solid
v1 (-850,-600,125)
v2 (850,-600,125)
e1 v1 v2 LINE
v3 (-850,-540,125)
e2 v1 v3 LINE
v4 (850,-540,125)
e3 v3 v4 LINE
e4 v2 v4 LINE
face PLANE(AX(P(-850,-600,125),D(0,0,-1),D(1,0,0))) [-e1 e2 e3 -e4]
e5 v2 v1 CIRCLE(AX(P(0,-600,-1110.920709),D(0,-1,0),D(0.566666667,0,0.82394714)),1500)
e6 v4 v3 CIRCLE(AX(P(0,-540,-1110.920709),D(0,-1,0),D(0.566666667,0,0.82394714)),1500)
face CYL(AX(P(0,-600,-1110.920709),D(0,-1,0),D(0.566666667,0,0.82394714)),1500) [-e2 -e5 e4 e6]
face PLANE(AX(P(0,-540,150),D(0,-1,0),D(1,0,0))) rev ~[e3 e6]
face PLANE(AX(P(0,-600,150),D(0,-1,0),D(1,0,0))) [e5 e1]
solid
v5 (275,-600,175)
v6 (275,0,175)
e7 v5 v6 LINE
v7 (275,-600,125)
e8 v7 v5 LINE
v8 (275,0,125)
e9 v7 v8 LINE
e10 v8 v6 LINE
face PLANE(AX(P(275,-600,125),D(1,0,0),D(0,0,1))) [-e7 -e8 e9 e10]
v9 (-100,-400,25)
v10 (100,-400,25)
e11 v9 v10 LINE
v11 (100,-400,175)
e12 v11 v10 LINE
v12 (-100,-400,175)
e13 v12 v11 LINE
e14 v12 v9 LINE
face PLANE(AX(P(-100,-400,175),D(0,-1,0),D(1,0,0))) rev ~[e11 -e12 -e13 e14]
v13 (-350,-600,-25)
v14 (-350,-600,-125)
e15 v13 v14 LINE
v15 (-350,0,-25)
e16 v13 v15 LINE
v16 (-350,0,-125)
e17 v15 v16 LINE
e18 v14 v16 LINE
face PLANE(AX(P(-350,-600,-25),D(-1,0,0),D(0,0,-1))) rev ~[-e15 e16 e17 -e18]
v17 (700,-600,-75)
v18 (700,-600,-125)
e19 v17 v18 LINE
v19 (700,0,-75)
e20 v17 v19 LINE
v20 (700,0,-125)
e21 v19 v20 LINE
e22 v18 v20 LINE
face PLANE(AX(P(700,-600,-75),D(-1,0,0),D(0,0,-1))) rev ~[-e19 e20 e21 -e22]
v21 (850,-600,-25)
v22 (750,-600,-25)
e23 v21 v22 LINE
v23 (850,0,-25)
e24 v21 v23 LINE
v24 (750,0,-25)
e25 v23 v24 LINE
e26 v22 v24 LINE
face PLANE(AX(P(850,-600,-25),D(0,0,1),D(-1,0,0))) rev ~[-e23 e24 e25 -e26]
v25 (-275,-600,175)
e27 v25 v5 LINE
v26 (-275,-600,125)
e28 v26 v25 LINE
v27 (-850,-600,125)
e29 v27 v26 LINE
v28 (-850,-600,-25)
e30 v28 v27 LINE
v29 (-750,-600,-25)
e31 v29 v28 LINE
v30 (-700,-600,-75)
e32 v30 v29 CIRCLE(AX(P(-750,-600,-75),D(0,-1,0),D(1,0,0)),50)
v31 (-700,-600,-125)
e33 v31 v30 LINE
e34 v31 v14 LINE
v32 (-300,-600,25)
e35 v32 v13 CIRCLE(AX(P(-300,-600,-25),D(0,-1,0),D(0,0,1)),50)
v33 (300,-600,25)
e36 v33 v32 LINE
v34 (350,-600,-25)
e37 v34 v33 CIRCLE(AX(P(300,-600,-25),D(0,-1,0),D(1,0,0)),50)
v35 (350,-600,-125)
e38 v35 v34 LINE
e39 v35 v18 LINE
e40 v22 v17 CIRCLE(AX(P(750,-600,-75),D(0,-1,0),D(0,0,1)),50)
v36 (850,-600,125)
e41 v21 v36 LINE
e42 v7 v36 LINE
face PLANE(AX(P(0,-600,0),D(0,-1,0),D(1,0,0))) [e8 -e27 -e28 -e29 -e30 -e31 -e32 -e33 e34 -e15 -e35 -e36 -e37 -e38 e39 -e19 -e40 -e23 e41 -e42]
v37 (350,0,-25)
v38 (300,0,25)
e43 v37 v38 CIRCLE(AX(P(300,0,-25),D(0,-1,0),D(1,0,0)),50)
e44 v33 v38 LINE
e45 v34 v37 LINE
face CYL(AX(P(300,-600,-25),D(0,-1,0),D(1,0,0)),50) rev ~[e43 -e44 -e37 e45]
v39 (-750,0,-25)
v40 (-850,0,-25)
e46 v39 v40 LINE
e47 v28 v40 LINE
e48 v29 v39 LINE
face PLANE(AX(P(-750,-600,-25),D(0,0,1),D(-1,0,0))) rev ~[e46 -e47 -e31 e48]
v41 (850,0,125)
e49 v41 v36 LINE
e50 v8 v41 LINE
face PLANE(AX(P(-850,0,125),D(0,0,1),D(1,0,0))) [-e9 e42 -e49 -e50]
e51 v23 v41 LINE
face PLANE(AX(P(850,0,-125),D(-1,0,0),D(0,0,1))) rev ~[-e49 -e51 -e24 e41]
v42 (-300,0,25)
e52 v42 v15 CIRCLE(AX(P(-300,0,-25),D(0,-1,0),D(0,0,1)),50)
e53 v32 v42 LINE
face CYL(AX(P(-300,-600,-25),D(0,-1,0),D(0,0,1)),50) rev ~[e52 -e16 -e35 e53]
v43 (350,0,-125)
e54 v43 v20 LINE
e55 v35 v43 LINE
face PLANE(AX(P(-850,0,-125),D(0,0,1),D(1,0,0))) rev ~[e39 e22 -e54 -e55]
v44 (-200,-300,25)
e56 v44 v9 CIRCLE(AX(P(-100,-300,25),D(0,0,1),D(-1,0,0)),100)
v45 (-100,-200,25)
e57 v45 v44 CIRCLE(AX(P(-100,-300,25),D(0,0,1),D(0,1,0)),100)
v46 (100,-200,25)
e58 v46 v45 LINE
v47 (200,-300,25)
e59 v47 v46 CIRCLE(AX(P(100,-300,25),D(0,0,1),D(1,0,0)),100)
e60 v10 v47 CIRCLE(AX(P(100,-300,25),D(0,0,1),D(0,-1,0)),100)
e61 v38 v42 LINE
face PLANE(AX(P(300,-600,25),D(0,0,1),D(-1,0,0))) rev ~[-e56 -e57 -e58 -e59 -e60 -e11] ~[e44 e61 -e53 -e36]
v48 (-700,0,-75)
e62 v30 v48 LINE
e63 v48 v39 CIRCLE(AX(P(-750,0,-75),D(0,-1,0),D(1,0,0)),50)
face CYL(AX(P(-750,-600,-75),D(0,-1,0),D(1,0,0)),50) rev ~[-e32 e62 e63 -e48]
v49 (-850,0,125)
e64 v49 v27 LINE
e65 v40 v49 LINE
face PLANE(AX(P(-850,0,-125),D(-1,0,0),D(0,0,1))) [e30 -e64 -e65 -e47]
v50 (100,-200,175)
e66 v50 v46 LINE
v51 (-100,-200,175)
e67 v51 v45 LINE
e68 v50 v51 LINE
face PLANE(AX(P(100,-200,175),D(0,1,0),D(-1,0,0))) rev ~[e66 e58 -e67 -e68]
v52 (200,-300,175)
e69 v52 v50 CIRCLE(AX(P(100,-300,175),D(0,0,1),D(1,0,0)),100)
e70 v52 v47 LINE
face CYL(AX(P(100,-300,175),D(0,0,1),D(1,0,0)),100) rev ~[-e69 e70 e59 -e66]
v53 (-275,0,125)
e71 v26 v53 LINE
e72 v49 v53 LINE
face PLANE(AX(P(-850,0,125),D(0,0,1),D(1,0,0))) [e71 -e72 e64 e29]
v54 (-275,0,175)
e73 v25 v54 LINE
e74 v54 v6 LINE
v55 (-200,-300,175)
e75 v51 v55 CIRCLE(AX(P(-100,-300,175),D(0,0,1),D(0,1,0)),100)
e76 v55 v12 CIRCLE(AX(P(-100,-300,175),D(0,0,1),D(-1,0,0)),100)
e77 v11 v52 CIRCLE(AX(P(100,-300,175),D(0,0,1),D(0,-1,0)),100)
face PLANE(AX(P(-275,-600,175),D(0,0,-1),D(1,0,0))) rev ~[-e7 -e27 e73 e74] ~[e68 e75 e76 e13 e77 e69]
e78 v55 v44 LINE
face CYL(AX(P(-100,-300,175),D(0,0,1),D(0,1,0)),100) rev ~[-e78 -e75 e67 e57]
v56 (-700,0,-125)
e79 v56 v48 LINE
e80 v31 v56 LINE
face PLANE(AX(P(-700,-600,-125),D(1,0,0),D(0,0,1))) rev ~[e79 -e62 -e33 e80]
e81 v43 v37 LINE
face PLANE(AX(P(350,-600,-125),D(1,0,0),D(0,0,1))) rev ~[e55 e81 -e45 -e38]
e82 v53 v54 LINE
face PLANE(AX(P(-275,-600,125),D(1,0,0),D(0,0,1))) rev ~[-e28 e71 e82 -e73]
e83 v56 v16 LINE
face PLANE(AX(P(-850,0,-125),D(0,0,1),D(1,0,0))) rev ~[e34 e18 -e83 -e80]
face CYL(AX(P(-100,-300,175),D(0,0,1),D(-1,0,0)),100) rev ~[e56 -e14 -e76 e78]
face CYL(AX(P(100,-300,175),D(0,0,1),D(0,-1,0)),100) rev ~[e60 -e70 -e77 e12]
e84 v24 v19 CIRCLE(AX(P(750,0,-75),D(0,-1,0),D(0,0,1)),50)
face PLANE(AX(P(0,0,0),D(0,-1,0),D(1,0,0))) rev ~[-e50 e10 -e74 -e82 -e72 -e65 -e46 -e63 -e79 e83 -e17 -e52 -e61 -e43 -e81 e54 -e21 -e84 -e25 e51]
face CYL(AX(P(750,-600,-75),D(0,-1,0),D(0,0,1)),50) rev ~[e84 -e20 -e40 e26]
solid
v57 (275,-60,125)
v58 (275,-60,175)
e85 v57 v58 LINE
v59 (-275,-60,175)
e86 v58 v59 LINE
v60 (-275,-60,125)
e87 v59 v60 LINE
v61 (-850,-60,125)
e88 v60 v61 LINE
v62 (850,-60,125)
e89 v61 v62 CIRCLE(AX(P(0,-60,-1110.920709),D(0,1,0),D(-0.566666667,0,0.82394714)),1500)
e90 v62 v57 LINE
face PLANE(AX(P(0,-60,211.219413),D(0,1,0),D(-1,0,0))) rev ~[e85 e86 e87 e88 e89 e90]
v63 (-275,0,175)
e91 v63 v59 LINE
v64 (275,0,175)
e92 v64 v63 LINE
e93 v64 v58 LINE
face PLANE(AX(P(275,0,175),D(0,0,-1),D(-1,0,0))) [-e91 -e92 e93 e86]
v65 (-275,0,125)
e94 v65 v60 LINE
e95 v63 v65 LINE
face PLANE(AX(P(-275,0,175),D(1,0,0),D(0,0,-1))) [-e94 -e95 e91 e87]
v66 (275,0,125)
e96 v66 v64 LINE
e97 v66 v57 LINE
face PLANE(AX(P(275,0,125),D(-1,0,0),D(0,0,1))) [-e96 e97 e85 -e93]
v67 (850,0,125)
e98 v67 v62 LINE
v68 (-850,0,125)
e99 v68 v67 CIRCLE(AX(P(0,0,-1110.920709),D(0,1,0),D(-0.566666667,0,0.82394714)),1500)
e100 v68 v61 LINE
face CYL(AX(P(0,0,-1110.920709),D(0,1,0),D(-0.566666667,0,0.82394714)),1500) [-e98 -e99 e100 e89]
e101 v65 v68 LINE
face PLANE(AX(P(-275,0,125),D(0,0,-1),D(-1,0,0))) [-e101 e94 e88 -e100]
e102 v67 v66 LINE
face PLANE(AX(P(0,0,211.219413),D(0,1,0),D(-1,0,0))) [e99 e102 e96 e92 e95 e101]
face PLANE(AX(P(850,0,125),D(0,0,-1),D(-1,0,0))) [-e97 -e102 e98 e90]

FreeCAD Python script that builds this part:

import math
import FreeCAD as App
import Part
import Sketcher


def add_polygon(sketch, points):
    """Adds a closed chain of lines whose ends are joined by coincident constraints."""
    first, n = sketch.GeometryCount, len(points)
    for a, b in zip(points, points[1:] + points[:1]):
        sketch.addGeometry(Part.LineSegment(App.Vector(*a, 0), App.Vector(*b, 0)), False)
    for i in range(n):
        sketch.addConstraint(Sketcher.Constraint("Coincident", first + i, 2, first + (i + 1) % n, 1))

doc = App.newDocument("Part")
body = doc.addObject("PartDesign::Body", "Body")

sketch1 = body.newObject("Sketcher::SketchObject", "Sketch")
sketch1.AttachmentSupport = (doc.getObject("XZ_Plane"), [""])
sketch1.MapMode = "FlatFace"
add_polygon(sketch1, [(-850, 125), (-850, -125), (850, -125), (850, 125)])
sketch1.addConstraint([
    Sketcher.Constraint("Vertical", 0),
    Sketcher.Constraint("Horizontal", 1),
    Sketcher.Constraint("Vertical", 2),
    Sketcher.Constraint("Horizontal", 3),
    Sketcher.Constraint("Symmetric", 0, 2, 2, 2, -1, 1),
    Sketcher.Constraint("DistanceX", 1, 1, 1, 2, 1700.0),
    Sketcher.Constraint("DistanceY", 0, 2, 0, 1, 250.0),
])
pad1 = body.newObject("PartDesign::Pad", "Pad")
pad1.Profile = sketch1
pad1.Length = 600

sketch2 = body.newObject("Sketcher::SketchObject", "Sketch001")
sketch2.AttachmentSupport = (doc.getObject("XZ_Plane"), [""])
sketch2.MapMode = "FlatFace"
sketch2.AttachmentOffset = App.Placement(App.Vector(0, 0, 600), App.Rotation())
sketch2.addGeometry([
    Part.ArcOfCircle(Part.Circle(App.Vector(300, -25, 0), App.Vector(0, 0, 1), 50), math.radians(0), math.radians(90)),
    Part.LineSegment(App.Vector(300, 25, 0), App.Vector(-300, 25, 0)),
    Part.ArcOfCircle(Part.Circle(App.Vector(-300, -25, 0), App.Vector(0, 0, 1), 50), math.radians(90), math.radians(180)),
    Part.LineSegment(App.Vector(-350, -25, 0), App.Vector(-350, -125, 0)),
    Part.LineSegment(App.Vector(-350, -125, 0), App.Vector(350, -125, 0)),
    Part.LineSegment(App.Vector(350, -125, 0), App.Vector(350, -25, 0)),
    Part.LineSegment(App.Vector(-700, -125, 0), App.Vector(-700, -75, 0)),
    Part.ArcOfCircle(Part.Circle(App.Vector(-750, -75, 0), App.Vector(0, 0, 1), 50), math.radians(0), math.radians(90)),
    Part.LineSegment(App.Vector(-750, -25, 0), App.Vector(-850, -25, 0)),
    Part.LineSegment(App.Vector(-850, -25, 0), App.Vector(-850, -125, 0)),
    Part.LineSegment(App.Vector(-850, -125, 0), App.Vector(-700, -125, 0)),
    Part.LineSegment(App.Vector(700, -75, 0), App.Vector(700, -125, 0)),
    Part.LineSegment(App.Vector(700, -125, 0), App.Vector(850, -125, 0)),
    Part.LineSegment(App.Vector(850, -125, 0), App.Vector(850, -25, 0)),
    Part.LineSegment(App.Vector(850, -25, 0), App.Vector(750, -25, 0)),
    Part.ArcOfCircle(Part.Circle(App.Vector(750, -75, 0), App.Vector(0, 0, 1), 50), math.radians(90), math.radians(180)),
], False)
sketch2.addConstraint([
    Sketcher.Constraint("Tangent", 0, 2, 1, 1),
    Sketcher.Constraint("Tangent", 1, 2, 2, 1),
    Sketcher.Constraint("Tangent", 2, 2, 3, 1),
    Sketcher.Constraint("Coincident", 3, 2, 4, 1),
    Sketcher.Constraint("Coincident", 4, 2, 5, 1),
    Sketcher.Constraint("Tangent", 5, 2, 0, 1),
    Sketcher.Constraint("Tangent", 6, 2, 7, 1),
    Sketcher.Constraint("Tangent", 7, 2, 8, 1),
    Sketcher.Constraint("Coincident", 8, 2, 9, 1),
    Sketcher.Constraint("Coincident", 9, 2, 10, 1),
    Sketcher.Constraint("Coincident", 10, 2, 6, 1),
    Sketcher.Constraint("Coincident", 11, 2, 12, 1),
    Sketcher.Constraint("Coincident", 12, 2, 13, 1),
    Sketcher.Constraint("Coincident", 13, 2, 14, 1),
    Sketcher.Constraint("Tangent", 14, 2, 15, 1),
    Sketcher.Constraint("Tangent", 15, 2, 11, 1),
    Sketcher.Constraint("Horizontal", 1),
    Sketcher.Constraint("Vertical", 3),
    Sketcher.Constraint("Horizontal", 4),
    Sketcher.Constraint("Vertical", 5),
    Sketcher.Constraint("Vertical", 6),
    Sketcher.Constraint("Horizontal", 8),
    Sketcher.Constraint("Vertical", 9),
    Sketcher.Constraint("Horizontal", 10),
    Sketcher.Constraint("Vertical", 11),
    Sketcher.Constraint("Horizontal", 12),
    Sketcher.Constraint("Vertical", 13),
    Sketcher.Constraint("Horizontal", 14),
    Sketcher.Constraint("Equal", 0, 2),
    Sketcher.Constraint("Equal", 2, 7),
    Sketcher.Constraint("Equal", 7, 15),
    Sketcher.Constraint("Symmetric", 7, 3, 15, 3, -2),
    Sketcher.Constraint("Symmetric", 9, 2, 12, 2, -2),
    Sketcher.Constraint("Horizontal", 5, 2, 7, 2),
    Sketcher.Constraint("Horizontal", 4, 2, 9, 2),
    Sketcher.Constraint("Equal", 14, 3),
    Sketcher.Constraint("Radius", 0, 50.0),
    Sketcher.Constraint("DistanceX", 1, 2, 1, 1, 600.0),
    Sketcher.Constraint("DistanceX", 8, 2, 8, 1, 100.0),
    Sketcher.Constraint("DistanceX", -1, 1, 0, 3, 300.0),
    Sketcher.Constraint("DistanceY", 0, 3, -1, 1, 25.0),
    Sketcher.Constraint("DistanceX", 7, 3, -1, 1, 750.0),
])
pocket1 = body.newObject("PartDesign::Pocket", "Pocket")
pocket1.Profile = sketch2
pocket1.Type = "ThroughAll"

sketch3 = body.newObject("Sketcher::SketchObject", "Sketch002")
sketch3.AttachmentSupport = (doc.getObject("XZ_Plane"), [""])
sketch3.MapMode = "FlatFace"
sketch3.AttachmentOffset = App.Placement(App.Vector(0, 0, 600), App.Rotation())
add_polygon(sketch3, [(-275, 175), (-275, 125), (275, 125), (275, 175)])
sketch3.addConstraint([
    Sketcher.Constraint("Vertical", 0),
    Sketcher.Constraint("Horizontal", 1),
    Sketcher.Constraint("Vertical", 2),
    Sketcher.Constraint("Horizontal", 3),
    Sketcher.Constraint("DistanceX", 1, 1, 1, 2, 550.0),
    Sketcher.Constraint("DistanceY", 0, 2, 0, 1, 50.0),
    Sketcher.Constraint("DistanceX", 0, 2, -1, 1, 275.0),
    Sketcher.Constraint("DistanceY", -1, 1, 0, 2, 125.0),
])
pad2 = body.newObject("PartDesign::Pad", "Pad001")
pad2.Profile = sketch3
pad2.Length = 600
pad2.Reversed = True

sketch4 = body.newObject("Sketcher::SketchObject", "Sketch003")
sketch4.AttachmentSupport = (doc.getObject("XY_Plane"), [""])
sketch4.MapMode = "FlatFace"
sketch4.AttachmentOffset = App.Placement(App.Vector(0, 0, 175), App.Rotation())
sketch4.addGeometry([
    Part.ArcOfCircle(Part.Circle(App.Vector(100, -300, 0), App.Vector(0, 0, 1), 100), math.radians(0), math.radians(90)),
    Part.LineSegment(App.Vector(100, -200, 0), App.Vector(-100, -200, 0)),
    Part.ArcOfCircle(Part.Circle(App.Vector(-100, -300, 0), App.Vector(0, 0, 1), 100), math.radians(90), math.radians(180)),
    Part.ArcOfCircle(Part.Circle(App.Vector(-100, -300, 0), App.Vector(0, 0, 1), 100), math.radians(180), math.radians(270)),
    Part.LineSegment(App.Vector(-100, -400, 0), App.Vector(100, -400, 0)),
    Part.ArcOfCircle(Part.Circle(App.Vector(100, -300, 0), App.Vector(0, 0, 1), 100), math.radians(-90), math.radians(0)),
], False)
sketch4.addConstraint([
    Sketcher.Constraint("Tangent", 0, 2, 1, 1),
    Sketcher.Constraint("Tangent", 1, 2, 2, 1),
    Sketcher.Constraint("Tangent", 2, 2, 3, 1),
    Sketcher.Constraint("Tangent", 3, 2, 4, 1),
    Sketcher.Constraint("Tangent", 4, 2, 5, 1),
    Sketcher.Constraint("Tangent", 5, 2, 0, 1),
    Sketcher.Constraint("Horizontal", 1),
    Sketcher.Constraint("Horizontal", 4),
    Sketcher.Constraint("Equal", 0, 2),
    Sketcher.Constraint("Equal", 2, 3),
    Sketcher.Constraint("Symmetric", 2, 2, 5, 2, -2),
    Sketcher.Constraint("Horizontal", 5, 3, 2, 2),
    Sketcher.Constraint("Radius", 0, 100.0),
    Sketcher.Constraint("DistanceX", 1, 2, 1, 1, 200.0),
    Sketcher.Constraint("DistanceY", 0, 3, -1, 1, 300.0),
])
pocket2 = body.newObject("PartDesign::Pocket", "Pocket001")
pocket2.Profile = sketch4
pocket2.Type = "ThroughAll"
body2 = doc.addObject("PartDesign::Body", "Body001")

sketch5 = body2.newObject("Sketcher::SketchObject", "Sketch004")
sketch5.AttachmentSupport = (doc.getObject("XZ_Plane001"), [""])
sketch5.MapMode = "FlatFace"
sketch5.AttachmentOffset = App.Placement(App.Vector(0, 0, 600), App.Rotation())
sketch5.addGeometry([
    Part.ArcOfCircle(Part.Circle(App.Vector(0, -1110.920709, 0), App.Vector(0, 0, 1), 1500), math.radians(55.481892), math.radians(124.518108)),
    Part.LineSegment(App.Vector(-850, 125, 0), App.Vector(850, 125, 0)),
], False)
sketch5.addConstraint([
    Sketcher.Constraint("Coincident", 0, 1, 1, 2),
    Sketcher.Constraint("Coincident", 1, 1, 0, 2),
    Sketcher.Constraint("Horizontal", 1),
    Sketcher.Constraint("PointOnObject", 0, 3, -2),
    Sketcher.Constraint("Radius", 0, 1500.0),
    Sketcher.Constraint("DistanceX", 1, 1, 1, 2, 1700.0),
    Sketcher.Constraint("DistanceY", -1, 1, 1, 1, 125.0),
])
pad3 = body2.newObject("PartDesign::Pad", "Pad002")
pad3.Profile = sketch5
pad3.Length = 60
pad3.Reversed = True
body3 = doc.addObject("PartDesign::Body", "Body002")

sketch6 = body3.newObject("Sketcher::SketchObject", "Sketch005")
sketch6.AttachmentSupport = (doc.getObject("XZ_Plane002"), [""])
sketch6.MapMode = "FlatFace"
sketch6.addGeometry([
    Part.LineSegment(App.Vector(-275, 125, 0), App.Vector(-850, 125, 0)),
    Part.ArcOfCircle(Part.Circle(App.Vector(0, -1110.920709, 0), App.Vector(0, 0, 1), 1500), math.radians(55.481892), math.radians(124.518108)),
    Part.LineSegment(App.Vector(850, 125, 0), App.Vector(275, 125, 0)),
    Part.LineSegment(App.Vector(275, 125, 0), App.Vector(275, 175, 0)),
    Part.LineSegment(App.Vector(275, 175, 0), App.Vector(-275, 175, 0)),
    Part.LineSegment(App.Vector(-275, 175, 0), App.Vector(-275, 125, 0)),
], False)
sketch6.addConstraint([
    Sketcher.Constraint("Coincident", 0, 2, 1, 2),
    Sketcher.Constraint("Coincident", 1, 1, 2, 1),
    Sketcher.Constraint("Coincident", 2, 2, 3, 1),
    Sketcher.Constraint("Coincident", 3, 2, 4, 1),
    Sketcher.Constraint("Coincident", 4, 2, 5, 1),
    Sketcher.Constraint("Coincident", 5, 2, 0, 1),
    Sketcher.Constraint("Horizontal", 0),
    Sketcher.Constraint("Horizontal", 2),
    Sketcher.Constraint("Vertical", 3),
    Sketcher.Constraint("Horizontal", 4),
    Sketcher.Constraint("Vertical", 5),
    Sketcher.Constraint("Symmetric", 2, 2, 5, 2, -2),
    Sketcher.Constraint("PointOnObject", 1, 3, -2),
    Sketcher.Constraint("Radius", 1, 1500.0),
    Sketcher.Constraint("DistanceX", 0, 2, 0, 1, 575.0),
    Sketcher.Constraint("DistanceX", 4, 2, 4, 1, 550.0),
    Sketcher.Constraint("DistanceY", 3, 1, 3, 2, 50.0),
    Sketcher.Constraint("DistanceY", -1, 1, 0, 2, 125.0),
])
pad4 = body3.newObject("PartDesign::Pad", "Pad003")
pad4.Profile = sketch6
pad4.Length = 60

doc.recompute()
